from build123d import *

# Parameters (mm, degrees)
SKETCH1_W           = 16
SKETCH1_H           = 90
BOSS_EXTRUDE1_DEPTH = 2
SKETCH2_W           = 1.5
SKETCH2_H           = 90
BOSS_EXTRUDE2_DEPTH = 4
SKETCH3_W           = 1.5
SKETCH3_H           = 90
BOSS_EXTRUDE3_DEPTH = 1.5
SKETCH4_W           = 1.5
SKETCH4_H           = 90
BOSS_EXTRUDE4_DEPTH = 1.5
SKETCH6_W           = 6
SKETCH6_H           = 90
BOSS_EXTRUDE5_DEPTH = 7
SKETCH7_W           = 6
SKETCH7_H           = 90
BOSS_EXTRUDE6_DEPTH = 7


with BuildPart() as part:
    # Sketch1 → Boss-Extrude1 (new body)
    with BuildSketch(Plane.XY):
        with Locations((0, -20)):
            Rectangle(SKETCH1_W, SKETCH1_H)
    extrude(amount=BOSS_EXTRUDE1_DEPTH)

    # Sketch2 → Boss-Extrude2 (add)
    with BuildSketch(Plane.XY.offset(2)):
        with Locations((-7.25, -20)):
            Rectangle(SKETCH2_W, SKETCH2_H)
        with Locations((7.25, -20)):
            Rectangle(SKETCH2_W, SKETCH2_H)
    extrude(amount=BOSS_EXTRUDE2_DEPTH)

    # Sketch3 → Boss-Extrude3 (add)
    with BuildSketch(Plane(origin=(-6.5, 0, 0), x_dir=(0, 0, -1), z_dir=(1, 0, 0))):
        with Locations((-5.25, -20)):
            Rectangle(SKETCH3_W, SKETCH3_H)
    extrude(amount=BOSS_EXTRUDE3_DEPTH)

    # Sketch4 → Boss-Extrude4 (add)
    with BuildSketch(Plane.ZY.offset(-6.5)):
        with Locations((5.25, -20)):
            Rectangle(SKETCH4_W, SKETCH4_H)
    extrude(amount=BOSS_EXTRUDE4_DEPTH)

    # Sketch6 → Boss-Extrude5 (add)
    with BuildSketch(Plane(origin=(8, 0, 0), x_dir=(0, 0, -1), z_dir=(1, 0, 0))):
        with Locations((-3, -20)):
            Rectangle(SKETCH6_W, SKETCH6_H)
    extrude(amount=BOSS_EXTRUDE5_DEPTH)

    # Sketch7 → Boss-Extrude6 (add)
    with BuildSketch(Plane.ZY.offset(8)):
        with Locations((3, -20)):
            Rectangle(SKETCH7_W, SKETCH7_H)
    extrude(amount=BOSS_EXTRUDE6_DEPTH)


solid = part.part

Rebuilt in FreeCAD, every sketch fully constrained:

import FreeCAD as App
import Part
import Sketcher
from FreeCAD import Vector


def add_polygon(sketch, points):
    """Adds a closed chain of lines whose ends are joined by coincident constraints."""
    first, n = sketch.GeometryCount, len(points)
    for a, b in zip(points, points[1:] + points[:1]):
        sketch.addGeometry(Part.LineSegment(App.Vector(*a, 0), App.Vector(*b, 0)), False)
    for i in range(n):
        sketch.addConstraint(Sketcher.Constraint("Coincident", first + i, 2, first + (i + 1) % n, 1))

doc = App.newDocument("Part")
body = doc.addObject("PartDesign::Body", "Body")

sketch1 = body.newObject("Sketcher::SketchObject", "Sketch")
sketch1.AttachmentSupport = (doc.getObject("XY_Plane"), [""])
sketch1.MapMode = "FlatFace"
add_polygon(sketch1, [(-8, 25), (-8, -65), (8, -65), (8, 25)])
sketch1.addConstraint(Sketcher.Constraint("Vertical", 0))
sketch1.addConstraint(Sketcher.Constraint("Horizontal", 1))
sketch1.addConstraint(Sketcher.Constraint("Vertical", 2))
sketch1.addConstraint(Sketcher.Constraint("Horizontal", 3))
sketch1.addConstraint(Sketcher.Constraint("DistanceX", 1, 1, 1, 2, 16.0))
sketch1.addConstraint(Sketcher.Constraint("DistanceY", 0, 2, 0, 1, 90.0))
sketch1.addConstraint(Sketcher.Constraint("DistanceX", 0, 2, -1, 1, 8.0))
sketch1.addConstraint(Sketcher.Constraint("DistanceY", 0, 2, -1, 1, 65.0))
pad1 = body.newObject("PartDesign::Pad", "Pad")
pad1.Profile = sketch1
pad1.Length = 2

sketch2 = body.newObject("Sketcher::SketchObject", "Sketch001")
sketch2.AttachmentSupport = (doc.getObject("XY_Plane"), [""])
sketch2.MapMode = "FlatFace"
sketch2.AttachmentOffset = App.Placement(Vector(0, 0, 2), App.Rotation())
add_polygon(sketch2, [(-8, 25), (-8, -65), (-6.5, -65), (-6.5, 25)])
add_polygon(sketch2, [(6.5, 25), (6.5, -65), (8, -65), (8, 25)])
sketch2.addConstraint(Sketcher.Constraint("Vertical", 0))
sketch2.addConstraint(Sketcher.Constraint("Horizontal", 1))
sketch2.addConstraint(Sketcher.Constraint("Vertical", 2))
sketch2.addConstraint(Sketcher.Constraint("Horizontal", 3))
sketch2.addConstraint(Sketcher.Constraint("Vertical", 4))
sketch2.addConstraint(Sketcher.Constraint("Horizontal", 5))
sketch2.addConstraint(Sketcher.Constraint("Vertical", 6))
sketch2.addConstraint(Sketcher.Constraint("Horizontal", 7))
sketch2.addConstraint(Sketcher.Constraint("Symmetric", 1, 2, 4, 2, -2))
sketch2.addConstraint(Sketcher.Constraint("Symmetric", 3, 2, 6, 2, -2))
sketch2.addConstraint(Sketcher.Constraint("DistanceY", 0, 2, 0, 1, 90.0))
sketch2.addConstraint(Sketcher.Constraint("DistanceX", 1, 1, 1, 2, 1.5))
sketch2.addConstraint(Sketcher.Constraint("DistanceX", 0, 2, -1, 1, 8.0))
sketch2.addConstraint(Sketcher.Constraint("DistanceY", 0, 2, -1, 1, 65.0))
pad2 = body.newObject("PartDesign::Pad", "Pad001")
pad2.Profile = sketch2
pad2.Length = 4

sketch3 = body.newObject("Sketcher::SketchObject", "Sketch002")
sketch3.AttachmentSupport = (doc.getObject("YZ_Plane"), [""])
sketch3.MapMode = "FlatFace"
sketch3.AttachmentOffset = App.Placement(Vector(0, 0, -6.5), App.Rotation())
add_polygon(sketch3, [(25, 6), (-65, 6), (-65, 4.5), (25, 4.5)])
sketch3.addConstraint(Sketcher.Constraint("Horizontal", 0))
sketch3.addConstraint(Sketcher.Constraint("Vertical", 1))
sketch3.addConstraint(Sketcher.Constraint("Horizontal", 2))
sketch3.addConstraint(Sketcher.Constraint("Vertical", 3))
sketch3.addConstraint(Sketcher.Constraint("DistanceX", 0, 2, 0, 1, 90.0))
sketch3.addConstraint(Sketcher.Constraint("DistanceY", 1, 2, 1, 1, 1.5))
sketch3.addConstraint(Sketcher.Constraint("DistanceX", 0, 2, -1, 1, 65.0))
sketch3.addConstraint(Sketcher.Constraint("DistanceY", -1, 1, 0, 2, 6.0))
pad3 = body.newObject("PartDesign::Pad", "Pad002")
pad3.Profile = sketch3
pad3.Length = 1.5

sketch4 = body.newObject("Sketcher::SketchObject", "Sketch003")
sketch4.AttachmentSupport = (doc.getObject("YZ_Plane"), [""])
sketch4.MapMode = "FlatFace"
sketch4.AttachmentOffset = App.Placement(Vector(0, 0, 6.5), App.Rotation())
add_polygon(sketch4, [(25, 4.5), (-65, 4.5), (-65, 6), (25, 6)])
sketch4.addConstraint(Sketcher.Constraint("Horizontal", 0))
sketch4.addConstraint(Sketcher.Constraint("Vertical", 1))
sketch4.addConstraint(Sketcher.Constraint("Horizontal", 2))
sketch4.addConstraint(Sketcher.Constraint("Vertical", 3))
sketch4.addConstraint(Sketcher.Constraint("DistanceX", 0, 2, 0, 1, 90.0))
sketch4.addConstraint(Sketcher.Constraint("DistanceY", 1, 1, 1, 2, 1.5))
sketch4.addConstraint(Sketcher.Constraint("DistanceX", 0, 2, -1, 1, 65.0))
sketch4.addConstraint(Sketcher.Constraint("DistanceY", -1, 1, 1, 2, 6.0))
pad4 = body.newObject("PartDesign::Pad", "Pad003")
pad4.Profile = sketch4
pad4.Length = 1.5
pad4.Reversed = True

sketch5 = body.newObject("Sketcher::SketchObject", "Sketch004")
sketch5.AttachmentSupport = (doc.getObject("YZ_Plane"), [""])
sketch5.MapMode = "FlatFace"
sketch5.AttachmentOffset = App.Placement(Vector(0, 0, 8), App.Rotation())
add_polygon(sketch5, [(25, 6), (-65, 6), (-65, 0), (25, 0)])
sketch5.addConstraint(Sketcher.Constraint("Horizontal", 0))
sketch5.addConstraint(Sketcher.Constraint("Vertical", 1))
sketch5.addConstraint(Sketcher.Constraint("Horizontal", 2))
sketch5.addConstraint(Sketcher.Constraint("Vertical", 3))
sketch5.addConstraint(Sketcher.Constraint("PointOnObject", 1, 2, -1))
sketch5.addConstraint(Sketcher.Constraint("DistanceX", 0, 2, 0, 1, 90.0))
sketch5.addConstraint(Sketcher.Constraint("DistanceY", 1, 2, 1, 1, 6.0))
sketch5.addConstraint(Sketcher.Constraint("DistanceX", 0, 2, -1, 1, 65.0))
pad5 = body.newObject("PartDesign::Pad", "Pad004")
pad5.Profile = sketch5
pad5.Length = 7

sketch6 = body.newObject("Sketcher::SketchObject", "Sketch005")
sketch6.AttachmentSupport = (doc.getObject("YZ_Plane"), [""])
sketch6.MapMode = "FlatFace"
sketch6.AttachmentOffset = App.Placement(Vector(0, 0, -8), App.Rotation())
add_polygon(sketch6, [(25, 0), (-65, 0), (-65, 6), (25, 6)])
sketch6.addConstraint(Sketcher.Constraint("Horizontal", 0))
sketch6.addConstraint(Sketcher.Constraint("Vertical", 1))
sketch6.addConstraint(Sketcher.Constraint("Horizontal", 2))
sketch6.addConstraint(Sketcher.Constraint("Vertical", 3))
sketch6.addConstraint(Sketcher.Constraint("PointOnObject", 0, 2, -1))
sketch6.addConstraint(Sketcher.Constraint("DistanceX", 0, 2, 0, 1, 90.0))
sketch6.addConstraint(Sketcher.Constraint("DistanceY", 1, 1, 1, 2, 6.0))
sketch6.addConstraint(Sketcher.Constraint("DistanceX", 0, 2, -1, 1, 65.0))
pad6 = body.newObject("PartDesign::Pad", "Pad005")
pad6.Profile = sketch6
pad6.Length = 7
pad6.Reversed = True

doc.recompute()
